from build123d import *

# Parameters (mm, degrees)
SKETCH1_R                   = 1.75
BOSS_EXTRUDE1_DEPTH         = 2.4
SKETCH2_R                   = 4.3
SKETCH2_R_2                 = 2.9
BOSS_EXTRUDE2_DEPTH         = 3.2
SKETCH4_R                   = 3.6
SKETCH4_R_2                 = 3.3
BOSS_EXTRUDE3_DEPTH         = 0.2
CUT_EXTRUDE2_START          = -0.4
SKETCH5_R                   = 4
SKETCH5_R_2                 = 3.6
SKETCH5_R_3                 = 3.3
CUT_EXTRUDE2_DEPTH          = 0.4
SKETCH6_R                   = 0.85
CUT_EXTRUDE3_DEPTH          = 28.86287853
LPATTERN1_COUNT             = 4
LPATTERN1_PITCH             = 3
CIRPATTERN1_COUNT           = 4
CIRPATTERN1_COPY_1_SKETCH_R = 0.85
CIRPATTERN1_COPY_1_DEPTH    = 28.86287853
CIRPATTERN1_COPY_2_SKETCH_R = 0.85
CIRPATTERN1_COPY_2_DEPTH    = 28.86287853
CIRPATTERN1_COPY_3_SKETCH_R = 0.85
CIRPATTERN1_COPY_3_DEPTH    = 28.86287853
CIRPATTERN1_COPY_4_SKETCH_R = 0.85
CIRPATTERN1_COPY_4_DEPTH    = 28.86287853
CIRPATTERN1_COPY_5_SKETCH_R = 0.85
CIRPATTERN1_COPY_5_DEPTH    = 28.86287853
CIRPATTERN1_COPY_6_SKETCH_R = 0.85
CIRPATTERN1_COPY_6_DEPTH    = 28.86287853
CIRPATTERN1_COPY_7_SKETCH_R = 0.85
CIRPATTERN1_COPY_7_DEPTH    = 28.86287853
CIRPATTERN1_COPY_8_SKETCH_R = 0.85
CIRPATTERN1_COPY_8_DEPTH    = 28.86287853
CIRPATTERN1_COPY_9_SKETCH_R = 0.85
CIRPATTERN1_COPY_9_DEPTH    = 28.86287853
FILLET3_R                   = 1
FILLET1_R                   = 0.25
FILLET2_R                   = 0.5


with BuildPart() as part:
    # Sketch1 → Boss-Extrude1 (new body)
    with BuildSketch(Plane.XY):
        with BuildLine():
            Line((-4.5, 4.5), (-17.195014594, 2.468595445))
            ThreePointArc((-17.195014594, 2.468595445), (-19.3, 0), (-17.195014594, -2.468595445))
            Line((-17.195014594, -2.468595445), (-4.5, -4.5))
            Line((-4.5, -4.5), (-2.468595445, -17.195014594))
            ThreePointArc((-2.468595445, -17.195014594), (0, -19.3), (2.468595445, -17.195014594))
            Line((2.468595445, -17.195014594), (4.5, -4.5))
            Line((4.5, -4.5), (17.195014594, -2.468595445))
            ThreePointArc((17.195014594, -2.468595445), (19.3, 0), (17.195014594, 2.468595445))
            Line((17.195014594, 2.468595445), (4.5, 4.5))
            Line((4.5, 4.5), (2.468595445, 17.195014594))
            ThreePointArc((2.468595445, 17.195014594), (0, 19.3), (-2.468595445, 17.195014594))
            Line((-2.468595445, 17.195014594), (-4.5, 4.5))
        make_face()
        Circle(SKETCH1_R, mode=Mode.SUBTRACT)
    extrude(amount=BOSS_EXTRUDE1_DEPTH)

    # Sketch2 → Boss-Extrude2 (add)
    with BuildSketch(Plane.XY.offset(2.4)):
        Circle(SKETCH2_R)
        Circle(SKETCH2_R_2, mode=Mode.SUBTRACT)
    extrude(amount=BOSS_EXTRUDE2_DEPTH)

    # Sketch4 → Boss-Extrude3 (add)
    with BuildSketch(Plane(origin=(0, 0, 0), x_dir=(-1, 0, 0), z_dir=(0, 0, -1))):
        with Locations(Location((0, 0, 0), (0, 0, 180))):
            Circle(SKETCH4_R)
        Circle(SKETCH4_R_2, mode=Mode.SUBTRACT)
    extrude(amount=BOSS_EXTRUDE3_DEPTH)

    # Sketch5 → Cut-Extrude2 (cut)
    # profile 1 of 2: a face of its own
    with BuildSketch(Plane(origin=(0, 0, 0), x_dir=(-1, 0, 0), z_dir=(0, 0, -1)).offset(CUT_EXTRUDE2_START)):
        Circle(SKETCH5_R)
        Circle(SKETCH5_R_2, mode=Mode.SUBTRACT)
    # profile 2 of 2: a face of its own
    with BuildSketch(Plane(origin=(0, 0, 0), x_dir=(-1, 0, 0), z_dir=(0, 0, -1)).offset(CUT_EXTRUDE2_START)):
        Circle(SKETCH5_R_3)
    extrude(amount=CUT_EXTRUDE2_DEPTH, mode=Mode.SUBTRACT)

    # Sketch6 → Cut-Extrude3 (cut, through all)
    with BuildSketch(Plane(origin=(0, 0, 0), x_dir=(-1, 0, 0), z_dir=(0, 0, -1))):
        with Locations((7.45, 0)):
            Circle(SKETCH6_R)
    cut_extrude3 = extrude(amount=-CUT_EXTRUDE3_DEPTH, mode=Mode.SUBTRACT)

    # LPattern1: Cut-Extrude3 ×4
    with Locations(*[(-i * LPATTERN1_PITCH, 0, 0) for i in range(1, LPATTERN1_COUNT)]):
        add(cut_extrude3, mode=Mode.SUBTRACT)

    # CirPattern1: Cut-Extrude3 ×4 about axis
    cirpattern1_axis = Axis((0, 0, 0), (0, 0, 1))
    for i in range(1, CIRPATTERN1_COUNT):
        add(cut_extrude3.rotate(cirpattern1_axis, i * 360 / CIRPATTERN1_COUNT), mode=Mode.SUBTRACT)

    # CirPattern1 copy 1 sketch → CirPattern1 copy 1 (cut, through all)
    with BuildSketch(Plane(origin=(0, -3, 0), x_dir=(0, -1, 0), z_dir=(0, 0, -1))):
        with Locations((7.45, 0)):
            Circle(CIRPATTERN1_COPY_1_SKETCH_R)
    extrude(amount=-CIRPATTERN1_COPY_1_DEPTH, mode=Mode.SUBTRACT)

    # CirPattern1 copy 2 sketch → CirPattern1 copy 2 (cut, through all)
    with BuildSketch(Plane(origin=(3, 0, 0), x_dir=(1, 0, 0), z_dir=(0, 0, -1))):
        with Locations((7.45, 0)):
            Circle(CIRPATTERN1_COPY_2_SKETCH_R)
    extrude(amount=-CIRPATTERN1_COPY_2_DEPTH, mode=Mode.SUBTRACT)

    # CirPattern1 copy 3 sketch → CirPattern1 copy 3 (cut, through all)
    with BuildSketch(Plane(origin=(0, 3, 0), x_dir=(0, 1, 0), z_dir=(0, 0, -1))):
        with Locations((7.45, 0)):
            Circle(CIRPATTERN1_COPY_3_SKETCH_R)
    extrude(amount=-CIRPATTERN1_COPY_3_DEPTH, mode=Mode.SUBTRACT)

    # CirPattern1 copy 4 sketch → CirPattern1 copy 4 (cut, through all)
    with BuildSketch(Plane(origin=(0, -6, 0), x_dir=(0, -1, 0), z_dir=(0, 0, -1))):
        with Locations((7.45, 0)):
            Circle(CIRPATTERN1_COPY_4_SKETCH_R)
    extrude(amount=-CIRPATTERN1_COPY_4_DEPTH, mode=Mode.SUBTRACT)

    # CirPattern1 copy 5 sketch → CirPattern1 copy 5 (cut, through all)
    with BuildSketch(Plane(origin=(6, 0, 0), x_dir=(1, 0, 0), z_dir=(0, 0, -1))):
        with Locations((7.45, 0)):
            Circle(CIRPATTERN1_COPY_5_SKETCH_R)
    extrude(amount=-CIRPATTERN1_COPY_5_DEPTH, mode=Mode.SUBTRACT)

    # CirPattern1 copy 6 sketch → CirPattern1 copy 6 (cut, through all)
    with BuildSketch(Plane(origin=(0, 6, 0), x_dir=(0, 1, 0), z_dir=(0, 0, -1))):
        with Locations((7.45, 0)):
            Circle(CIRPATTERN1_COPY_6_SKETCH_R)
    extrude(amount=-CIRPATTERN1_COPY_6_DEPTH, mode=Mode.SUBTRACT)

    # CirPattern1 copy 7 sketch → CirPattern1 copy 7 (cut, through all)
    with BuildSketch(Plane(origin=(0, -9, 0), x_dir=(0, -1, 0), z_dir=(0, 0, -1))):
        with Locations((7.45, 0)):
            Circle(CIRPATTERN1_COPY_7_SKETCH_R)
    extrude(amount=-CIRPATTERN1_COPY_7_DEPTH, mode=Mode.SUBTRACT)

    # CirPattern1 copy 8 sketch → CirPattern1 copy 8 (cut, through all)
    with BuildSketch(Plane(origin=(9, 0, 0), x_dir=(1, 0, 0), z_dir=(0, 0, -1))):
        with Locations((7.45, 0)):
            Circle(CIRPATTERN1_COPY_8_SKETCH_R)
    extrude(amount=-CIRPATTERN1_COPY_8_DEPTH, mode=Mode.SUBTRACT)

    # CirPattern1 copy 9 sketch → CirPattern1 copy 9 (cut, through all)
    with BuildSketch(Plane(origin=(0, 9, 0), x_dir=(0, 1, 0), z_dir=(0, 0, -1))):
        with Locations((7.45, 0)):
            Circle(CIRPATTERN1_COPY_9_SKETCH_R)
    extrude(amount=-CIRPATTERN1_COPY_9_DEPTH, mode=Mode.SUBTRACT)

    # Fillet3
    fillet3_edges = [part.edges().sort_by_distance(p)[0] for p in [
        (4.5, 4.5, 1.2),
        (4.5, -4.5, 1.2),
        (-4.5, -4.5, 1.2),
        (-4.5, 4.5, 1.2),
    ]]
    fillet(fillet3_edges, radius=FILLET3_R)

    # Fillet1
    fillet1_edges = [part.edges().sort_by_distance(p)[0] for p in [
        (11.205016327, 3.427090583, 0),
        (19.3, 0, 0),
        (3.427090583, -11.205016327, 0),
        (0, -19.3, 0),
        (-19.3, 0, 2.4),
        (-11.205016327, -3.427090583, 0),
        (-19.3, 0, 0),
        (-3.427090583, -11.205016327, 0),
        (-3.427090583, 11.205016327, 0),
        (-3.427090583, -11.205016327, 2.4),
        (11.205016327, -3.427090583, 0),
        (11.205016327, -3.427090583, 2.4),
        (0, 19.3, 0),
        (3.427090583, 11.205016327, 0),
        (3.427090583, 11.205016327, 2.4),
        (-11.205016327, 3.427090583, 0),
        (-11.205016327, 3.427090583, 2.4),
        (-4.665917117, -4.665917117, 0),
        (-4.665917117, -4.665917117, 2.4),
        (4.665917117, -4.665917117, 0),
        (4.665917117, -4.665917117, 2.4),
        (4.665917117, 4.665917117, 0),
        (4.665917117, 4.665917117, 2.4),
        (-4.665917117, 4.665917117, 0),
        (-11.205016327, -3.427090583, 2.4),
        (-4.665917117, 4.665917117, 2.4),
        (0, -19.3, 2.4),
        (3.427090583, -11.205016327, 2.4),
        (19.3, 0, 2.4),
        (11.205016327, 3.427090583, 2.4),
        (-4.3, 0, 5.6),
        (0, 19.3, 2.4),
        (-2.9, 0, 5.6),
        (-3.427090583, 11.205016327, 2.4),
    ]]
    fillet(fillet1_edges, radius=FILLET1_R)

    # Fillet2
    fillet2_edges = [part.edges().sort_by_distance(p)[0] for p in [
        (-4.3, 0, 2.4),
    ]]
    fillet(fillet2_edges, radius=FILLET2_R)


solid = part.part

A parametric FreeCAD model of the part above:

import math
import FreeCAD as App
import Part
import Sketcher

V = App.Vector


def edges_at(feature, points):
    """Names of the edges that pass closest to the given points."""
    edges = feature.Shape.Edges
    near = lambda p: min(range(len(edges)), key=lambda i: edges[i].distToShape(Part.Vertex(*p))[0])
    return sorted({f"Edge{near(p) + 1}" for p in points})

doc = App.newDocument("Part")
params = doc.addObject("Spreadsheet::Sheet", "Params")
for row, (alias, value) in enumerate([
    ("sketch1_diameter", "3.5 mm"),
    ("sketch1_radius", "2.5 mm"),
    ("pad1_length", "2.4 mm"),
    ("sketch2_diameter", "8.6 mm"),
    ("sketch2_diameter2", "5.8 mm"),
    ("pad2_length", "3.2 mm"),
    ("sketch3_diameter", "7.2 mm"),
    ("sketch3_diameter2", "6.6 mm"),
    ("pad3_length", "0.2 mm"),
    ("sketch4_diameter", "8 mm"),
    ("sketch4_diameter2", "7.2 mm"),
    ("sketch4_diameter3", "6.6 mm"),
    ("pocket1_length", "0.4 mm"),
    ("sketch5_diameter", "1.7 mm"),
    ("linearpattern_pitch", "3 mm"),
    ("sketch6_diameter", "1.7 mm"),
    ("sketch7_diameter", "1.7 mm"),
    ("sketch8_diameter", "1.7 mm"),
    ("sketch9_diameter", "1.7 mm"),
    ("sketch10_diameter", "1.7 mm"),
    ("sketch11_diameter", "1.7 mm"),
    ("sketch12_diameter", "1.7 mm"),
    ("sketch13_diameter", "1.7 mm"),
    ("sketch14_diameter", "1.7 mm"),
    ("fillet_radius", "1 mm"),
    ("fillet2_radius", "0.25 mm"),
    ("fillet3_radius", "0.5 mm"),
], start=1):
    params.set(f"A{row}", alias)
    params.set(f"B{row}", "=" + value)
    params.setAlias(f"B{row}", alias)

body = doc.addObject("PartDesign::Body", "Body")

# Sketch on XY plane
sketch1 = body.newObject("Sketcher::SketchObject", "Sketch")
sketch1.AttachmentSupport = (doc.getObject("XY_Plane"), [""])
sketch1.MapMode = "FlatFace"
sketch1.addGeometry(Part.LineSegment(V(-4.5, 4.5, 0), V(-17.195015, 2.468595, 0)), False)
sketch1.addGeometry(Part.ArcOfCircle(Part.Circle(V(-16.8, 0, 0), V(0, 0, 1), 2.5), math.radians(99.091167), math.radians(260.908833)), False)
sketch1.addGeometry(Part.LineSegment(V(-17.195015, -2.468595, 0), V(-4.5, -4.5, 0)), False)
sketch1.addGeometry(Part.LineSegment(V(-4.5, -4.5, 0), V(-2.468595, -17.195015, 0)), False)
sketch1.addGeometry(Part.ArcOfCircle(Part.Circle(V(0, -16.8, 0), V(0, 0, 1), 2.5), math.radians(-170.908833), math.radians(-9.091167)), False)
sketch1.addGeometry(Part.LineSegment(V(2.468595, -17.195015, 0), V(4.5, -4.5, 0)), False)
sketch1.addGeometry(Part.LineSegment(V(4.5, -4.5, 0), V(17.195015, -2.468595, 0)), False)
sketch1.addGeometry(Part.ArcOfCircle(Part.Circle(V(16.8, 0, 0), V(0, 0, 1), 2.5), math.radians(-80.908833), math.radians(80.908833)), False)
sketch1.addGeometry(Part.LineSegment(V(17.195015, 2.468595, 0), V(4.5, 4.5, 0)), False)
sketch1.addGeometry(Part.LineSegment(V(4.5, 4.5, 0), V(2.468595, 17.195015, 0)), False)
sketch1.addGeometry(Part.ArcOfCircle(Part.Circle(V(0, 16.8, 0), V(0, 0, 1), 2.5), math.radians(9.091167), math.radians(170.908833)), False)
sketch1.addGeometry(Part.LineSegment(V(-2.468595, 17.195015, 0), V(-4.5, 4.5, 0)), False)
sketch1.addGeometry(Part.Circle(V(0, 0, 0), V(0, 0, 1), 1.75), False)
sketch1.addConstraint(Sketcher.Constraint("Tangent", 0, 2, 1, 1))
sketch1.addConstraint(Sketcher.Constraint("Tangent", 1, 2, 2, 1))
sketch1.addConstraint(Sketcher.Constraint("Coincident", 2, 2, 3, 1))
sketch1.addConstraint(Sketcher.Constraint("Tangent", 3, 2, 4, 1))
sketch1.addConstraint(Sketcher.Constraint("Tangent", 4, 2, 5, 1))
sketch1.addConstraint(Sketcher.Constraint("Coincident", 5, 2, 6, 1))
sketch1.addConstraint(Sketcher.Constraint("Tangent", 6, 2, 7, 1))
sketch1.addConstraint(Sketcher.Constraint("Tangent", 7, 2, 8, 1))
sketch1.addConstraint(Sketcher.Constraint("Coincident", 8, 2, 9, 1))
sketch1.addConstraint(Sketcher.Constraint("Tangent", 9, 2, 10, 1))
sketch1.addConstraint(Sketcher.Constraint("Tangent", 10, 2, 11, 1))
sketch1.addConstraint(Sketcher.Constraint("Coincident", 11, 2, 0, 1))
sketch1.addConstraint(Sketcher.Constraint("Coincident", 12, 3, -1, 1))
sketch1.addConstraint(Sketcher.Constraint("Equal", 1, 4))
sketch1.addConstraint(Sketcher.Constraint("Equal", 4, 7))
sketch1.addConstraint(Sketcher.Constraint("Equal", 7, 10))
sketch1.addConstraint(Sketcher.Constraint("Symmetric", 1, 3, 7, 3, -1, 1))
sketch1.addConstraint(Sketcher.Constraint("Symmetric", 4, 3, 10, 3, -1, 1))
sketch1.addConstraint(Sketcher.Constraint("Symmetric", 2, 2, 8, 2, -1, 1))
sketch1.addConstraint(Sketcher.Constraint("Symmetric", 5, 2, 11, 2, -1, 1))
sketch1.addConstraint(Sketcher.Constraint("Symmetric", 3, 2, 4, 2, -2))
sketch1.addConstraint(Sketcher.Constraint("Symmetric", 1, 2, 6, 2, -2))
sketch1.addConstraint(Sketcher.Constraint("Perpendicular", 0, 3))
sketch1.addConstraint(Sketcher.Constraint("Equal", 2, 3))
sketch1.addConstraint(Sketcher.Constraint("Diameter", 12, 3.5))
sketch1.addConstraint(Sketcher.Constraint("Radius", 1, 2.5))
sketch1.addConstraint(Sketcher.Constraint("DistanceX", 2, 2, 5, 2, 9.0))
sketch1.addConstraint(Sketcher.Constraint("DistanceX", 1, 3, -1, 1, 16.8))
sketch1.setExpression("Constraints[24]", "Params.sketch1_diameter")
sketch1.setExpression("Constraints[25]", "Params.sketch1_radius")
pad1 = body.newObject("PartDesign::Pad", "Pad")
pad1.Profile = sketch1
pad1.setExpression("Length", "Params.pad1_length")

# Sketch on XY plane
sketch2 = body.newObject("Sketcher::SketchObject", "Sketch001")
sketch2.AttachmentSupport = (doc.getObject("XY_Plane"), [""])
sketch2.MapMode = "FlatFace"
sketch2.AttachmentOffset = App.Placement(V(0, 0, 2.4), App.Rotation())
sketch2.addGeometry(Part.Circle(V(0, 0, 0), V(0, 0, 1), 4.3), False)
sketch2.addGeometry(Part.Circle(V(0, 0, 0), V(0, 0, 1), 2.9), False)
sketch2.addConstraint(Sketcher.Constraint("Coincident", 0, 3, -1, 1))
sketch2.addConstraint(Sketcher.Constraint("Coincident", 1, 3, -1, 1))
sketch2.addConstraint(Sketcher.Constraint("Diameter", 0, 8.6))
sketch2.addConstraint(Sketcher.Constraint("Diameter", 1, 5.8))
sketch2.setExpression("Constraints[2]", "Params.sketch2_diameter")
sketch2.setExpression("Constraints[3]", "Params.sketch2_diameter2")
pad2 = body.newObject("PartDesign::Pad", "Pad001")
pad2.Profile = sketch2
pad2.setExpression("Length", "Params.pad2_length")

# Sketch on XY plane
sketch3 = body.newObject("Sketcher::SketchObject", "Sketch002")
sketch3.AttachmentSupport = (doc.getObject("XY_Plane"), [""])
sketch3.MapMode = "FlatFace"
sketch3.addGeometry(Part.Circle(V(0, 0, 0), V(0, 0, 1), 3.6), False)
sketch3.addGeometry(Part.Circle(V(0, 0, 0), V(0, 0, 1), 3.3), False)
sketch3.addConstraint(Sketcher.Constraint("Coincident", 0, 3, -1, 1))
sketch3.addConstraint(Sketcher.Constraint("Coincident", 1, 3, -1, 1))
sketch3.addConstraint(Sketcher.Constraint("Diameter", 0, 7.2))
sketch3.addConstraint(Sketcher.Constraint("Diameter", 1, 6.6))
sketch3.setExpression("Constraints[2]", "Params.sketch3_diameter")
sketch3.setExpression("Constraints[3]", "Params.sketch3_diameter2")
pad3 = body.newObject("PartDesign::Pad", "Pad002")
pad3.Profile = sketch3
pad3.setExpression("Length", "Params.pad3_length")
pad3.Reversed = True

# Sketch on XY plane
sketch4 = body.newObject("Sketcher::SketchObject", "Sketch003")
sketch4.AttachmentSupport = (doc.getObject("XY_Plane"), [""])
sketch4.MapMode = "FlatFace"
sketch4.AttachmentOffset = App.Placement(V(0, 0, 0.4), App.Rotation())
sketch4.addGeometry(Part.Circle(V(0, 0, 0), V(0, 0, 1), 4), False)
sketch4.addGeometry(Part.Circle(V(0, 0, 0), V(0, 0, 1), 3.6), False)
sketch4.addGeometry(Part.Circle(V(0, 0, 0), V(0, 0, 1), 3.3), False)
sketch4.addConstraint(Sketcher.Constraint("Coincident", 0, 3, -1, 1))
sketch4.addConstraint(Sketcher.Constraint("Coincident", 1, 3, -1, 1))
sketch4.addConstraint(Sketcher.Constraint("Coincident", 2, 3, -1, 1))
sketch4.addConstraint(Sketcher.Constraint("Diameter", 0, 8.0))
sketch4.addConstraint(Sketcher.Constraint("Diameter", 1, 7.2))
sketch4.addConstraint(Sketcher.Constraint("Diameter", 2, 6.6))
sketch4.setExpression("Constraints[3]", "Params.sketch4_diameter")
sketch4.setExpression("Constraints[4]", "Params.sketch4_diameter2")
sketch4.setExpression("Constraints[5]", "Params.sketch4_diameter3")
pocket1 = body.newObject("PartDesign::Pocket", "Pocket")
pocket1.Profile = sketch4
pocket1.setExpression("Length", "Params.pocket1_length")

# Sketch on XY plane
sketch5 = body.newObject("Sketcher::SketchObject", "Sketch004")
sketch5.AttachmentSupport = (doc.getObject("XY_Plane"), [""])
sketch5.MapMode = "FlatFace"
sketch5.addGeometry(Part.Circle(V(-7.45, 0, 0), V(0, 0, 1), 0.85), False)
sketch5.addConstraint(Sketcher.Constraint("PointOnObject", 0, 3, -1))
sketch5.addConstraint(Sketcher.Constraint("Diameter", 0, 1.7))
sketch5.addConstraint(Sketcher.Constraint("DistanceX", 0, 3, -1, 1, 7.45))
sketch5.setExpression("Constraints[1]", "Params.sketch5_diameter")
pocket2 = body.newObject("PartDesign::Pocket", "Pocket001")
pocket2.Profile = sketch5
pocket2.Type = "ThroughAll"
pocket2.Reversed = True
doc.recompute()

linearpattern = body.newObject("PartDesign::LinearPattern", "LinearPattern")
linearpattern.Originals = [pocket2]
linearpattern.Direction = (doc.getObject("X_Axis"), [""])
linearpattern.Mode = "offset"
linearpattern.setExpression("Offset", "Params.linearpattern_pitch")
linearpattern.Occurrences = 4
linearpattern.Reversed = True
body.Tip = linearpattern
doc.recompute()

polarpattern = body.newObject("PartDesign::PolarPattern", "PolarPattern")
polarpattern.Originals = [pocket2]
polarpattern.Axis = (doc.getObject("Z_Axis"), [""])
polarpattern.Angle = 360
polarpattern.Occurrences = 4
body.Tip = polarpattern

# Sketch on XY plane
sketch6 = body.newObject("Sketcher::SketchObject", "Sketch005")
sketch6.AttachmentSupport = (doc.getObject("XY_Plane"), [""])
sketch6.MapMode = "FlatFace"
sketch6.addGeometry(Part.Circle(V(0, -10.45, 0), V(0, 0, 1), 0.85), False)
sketch6.addConstraint(Sketcher.Constraint("PointOnObject", 0, 3, -2))
sketch6.addConstraint(Sketcher.Constraint("Diameter", 0, 1.7))
sketch6.addConstraint(Sketcher.Constraint("DistanceY", 0, 3, -1, 1, 10.45))
sketch6.setExpression("Constraints[1]", "Params.sketch6_diameter")
pocket3 = body.newObject("PartDesign::Pocket", "Pocket002")
pocket3.Profile = sketch6
pocket3.Type = "ThroughAll"
pocket3.Reversed = True

# Sketch on XY plane
sketch7 = body.newObject("Sketcher::SketchObject", "Sketch006")
sketch7.AttachmentSupport = (doc.getObject("XY_Plane"), [""])
sketch7.MapMode = "FlatFace"
sketch7.addGeometry(Part.Circle(V(10.45, 0, 0), V(0, 0, 1), 0.85), False)
sketch7.addConstraint(Sketcher.Constraint("PointOnObject", 0, 3, -1))
sketch7.addConstraint(Sketcher.Constraint("Diameter", 0, 1.7))
sketch7.addConstraint(Sketcher.Constraint("DistanceX", -1, 1, 0, 3, 10.45))
sketch7.setExpression("Constraints[1]", "Params.sketch7_diameter")
pocket4 = body.newObject("PartDesign::Pocket", "Pocket003")
pocket4.Profile = sketch7
pocket4.Type = "ThroughAll"
pocket4.Reversed = True

# Sketch on XY plane
sketch8 = body.newObject("Sketcher::SketchObject", "Sketch007")
sketch8.AttachmentSupport = (doc.getObject("XY_Plane"), [""])
sketch8.MapMode = "FlatFace"
sketch8.addGeometry(Part.Circle(V(0, 10.45, 0), V(0, 0, 1), 0.85), False)
sketch8.addConstraint(Sketcher.Constraint("PointOnObject", 0, 3, -2))
sketch8.addConstraint(Sketcher.Constraint("Diameter", 0, 1.7))
sketch8.addConstraint(Sketcher.Constraint("DistanceY", -1, 1, 0, 3, 10.45))
sketch8.setExpression("Constraints[1]", "Params.sketch8_diameter")
pocket5 = body.newObject("PartDesign::Pocket", "Pocket004")
pocket5.Profile = sketch8
pocket5.Type = "ThroughAll"
pocket5.Reversed = True

# Sketch on XY plane
sketch9 = body.newObject("Sketcher::SketchObject", "Sketch008")
sketch9.AttachmentSupport = (doc.getObject("XY_Plane"), [""])
sketch9.MapMode = "FlatFace"
sketch9.addGeometry(Part.Circle(V(0, -13.45, 0), V(0, 0, 1), 0.85), False)
sketch9.addConstraint(Sketcher.Constraint("PointOnObject", 0, 3, -2))
sketch9.addConstraint(Sketcher.Constraint("Diameter", 0, 1.7))
sketch9.addConstraint(Sketcher.Constraint("DistanceY", 0, 3, -1, 1, 13.45))
sketch9.setExpression("Constraints[1]", "Params.sketch9_diameter")
pocket6 = body.newObject("PartDesign::Pocket", "Pocket005")
pocket6.Profile = sketch9
pocket6.Type = "ThroughAll"
pocket6.Reversed = True

# Sketch on XY plane
sketch10 = body.newObject("Sketcher::SketchObject", "Sketch009")
sketch10.AttachmentSupport = (doc.getObject("XY_Plane"), [""])
sketch10.MapMode = "FlatFace"
sketch10.addGeometry(Part.Circle(V(13.45, 0, 0), V(0, 0, 1), 0.85), False)
sketch10.addConstraint(Sketcher.Constraint("PointOnObject", 0, 3, -1))
sketch10.addConstraint(Sketcher.Constraint("Diameter", 0, 1.7))
sketch10.addConstraint(Sketcher.Constraint("DistanceX", -1, 1, 0, 3, 13.45))
sketch10.setExpression("Constraints[1]", "Params.sketch10_diameter")
pocket7 = body.newObject("PartDesign::Pocket", "Pocket006")
pocket7.Profile = sketch10
pocket7.Type = "ThroughAll"
pocket7.Reversed = True

# Sketch on XY plane
sketch11 = body.newObject("Sketcher::SketchObject", "Sketch010")
sketch11.AttachmentSupport = (doc.getObject("XY_Plane"), [""])
sketch11.MapMode = "FlatFace"
sketch11.addGeometry(Part.Circle(V(0, 13.45, 0), V(0, 0, 1), 0.85), False)
sketch11.addConstraint(Sketcher.Constraint("PointOnObject", 0, 3, -2))
sketch11.addConstraint(Sketcher.Constraint("Diameter", 0, 1.7))
sketch11.addConstraint(Sketcher.Constraint("DistanceY", -1, 1, 0, 3, 13.45))
sketch11.setExpression("Constraints[1]", "Params.sketch11_diameter")
pocket8 = body.newObject("PartDesign::Pocket", "Pocket007")
pocket8.Profile = sketch11
pocket8.Type = "ThroughAll"
pocket8.Reversed = True

# Sketch on XY plane
sketch12 = body.newObject("Sketcher::SketchObject", "Sketch011")
sketch12.AttachmentSupport = (doc.getObject("XY_Plane"), [""])
sketch12.MapMode = "FlatFace"
sketch12.addGeometry(Part.Circle(V(0, -16.45, 0), V(0, 0, 1), 0.85), False)
sketch12.addConstraint(Sketcher.Constraint("PointOnObject", 0, 3, -2))
sketch12.addConstraint(Sketcher.Constraint("Diameter", 0, 1.7))
sketch12.addConstraint(Sketcher.Constraint("DistanceY", 0, 3, -1, 1, 16.45))
sketch12.setExpression("Constraints[1]", "Params.sketch12_diameter")
pocket9 = body.newObject("PartDesign::Pocket", "Pocket008")
pocket9.Profile = sketch12
pocket9.Type = "ThroughAll"
pocket9.Reversed = True

# Sketch on XY plane
sketch13 = body.newObject("Sketcher::SketchObject", "Sketch012")
sketch13.AttachmentSupport = (doc.getObject("XY_Plane"), [""])
sketch13.MapMode = "FlatFace"
sketch13.addGeometry(Part.Circle(V(16.45, 0, 0), V(0, 0, 1), 0.85), False)
sketch13.addConstraint(Sketcher.Constraint("PointOnObject", 0, 3, -1))
sketch13.addConstraint(Sketcher.Constraint("Diameter", 0, 1.7))
sketch13.addConstraint(Sketcher.Constraint("DistanceX", -1, 1, 0, 3, 16.45))
sketch13.setExpression("Constraints[1]", "Params.sketch13_diameter")
pocket10 = body.newObject("PartDesign::Pocket", "Pocket009")
pocket10.Profile = sketch13
pocket10.Type = "ThroughAll"
pocket10.Reversed = True

# Sketch on XY plane
sketch14 = body.newObject("Sketcher::SketchObject", "Sketch013")
sketch14.AttachmentSupport = (doc.getObject("XY_Plane"), [""])
sketch14.MapMode = "FlatFace"
sketch14.addGeometry(Part.Circle(V(0, 16.45, 0), V(0, 0, 1), 0.85), False)
sketch14.addConstraint(Sketcher.Constraint("PointOnObject", 0, 3, -2))
sketch14.addConstraint(Sketcher.Constraint("Diameter", 0, 1.7))
sketch14.addConstraint(Sketcher.Constraint("DistanceY", -1, 1, 0, 3, 16.45))
sketch14.setExpression("Constraints[1]", "Params.sketch14_diameter")
pocket11 = body.newObject("PartDesign::Pocket", "Pocket010")
pocket11.Profile = sketch14
pocket11.Type = "ThroughAll"
pocket11.Reversed = True
doc.recompute()

fillet = body.newObject("PartDesign::Fillet", "Fillet")
fillet.Base = (pocket11, edges_at(pocket11, [
    (4.5, 4.5, 1.2),
    (4.5, -4.5, 1.2),
    (-4.5, -4.5, 1.2),
    (-4.5, 4.5, 1.2),
]))
fillet.setExpression("Radius", "Params.fillet_radius")
doc.recompute()

fillet2 = body.newObject("PartDesign::Fillet", "Fillet001")
fillet2.Base = (fillet, edges_at(fillet, [
    (11.205, 3.427, 0),
    (19.3, 0, 0),
    (3.427, -11.205, 0),
    (0, -19.3, 0),
    (-19.3, 0, 2.4),
    (-11.205, -3.427, 0),
    (-19.3, 0, 0),
    (-3.427, -11.205, 0),
    (-3.427, 11.205, 0),
    (-3.427, -11.205, 2.4),
    (11.205, -3.427, 0),
    (11.205, -3.427, 2.4),
    (0, 19.3, 0),
    (3.427, 11.205, 0),
    (3.427, 11.205, 2.4),
    (-11.205, 3.427, 0),
    (-11.205, 3.427, 2.4),
    (-4.666, -4.666, 0),
    (-4.666, -4.666, 2.4),
    (4.666, -4.666, 0),
    (4.666, -4.666, 2.4),
    (4.666, 4.666, 0),
    (4.666, 4.666, 2.4),
    (-4.666, 4.666, 0),
    (-11.205, -3.427, 2.4),
    (-4.666, 4.666, 2.4),
    (0, -19.3, 2.4),
    (3.427, -11.205, 2.4),
    (19.3, 0, 2.4),
    (11.205, 3.427, 2.4),
    (-4.3, 0, 5.6),
    (0, 19.3, 2.4),
    (-2.9, 0, 5.6),
    (-3.427, 11.205, 2.4),
]))
fillet2.setExpression("Radius", "Params.fillet2_radius")
doc.recompute()

fillet3 = body.newObject("PartDesign::Fillet", "Fillet002")
fillet3.Base = (fillet2, edges_at(fillet2, [(-4.3, 0, 2.4)]))
fillet3.setExpression("Radius", "Params.fillet3_radius")

doc.recompute()
